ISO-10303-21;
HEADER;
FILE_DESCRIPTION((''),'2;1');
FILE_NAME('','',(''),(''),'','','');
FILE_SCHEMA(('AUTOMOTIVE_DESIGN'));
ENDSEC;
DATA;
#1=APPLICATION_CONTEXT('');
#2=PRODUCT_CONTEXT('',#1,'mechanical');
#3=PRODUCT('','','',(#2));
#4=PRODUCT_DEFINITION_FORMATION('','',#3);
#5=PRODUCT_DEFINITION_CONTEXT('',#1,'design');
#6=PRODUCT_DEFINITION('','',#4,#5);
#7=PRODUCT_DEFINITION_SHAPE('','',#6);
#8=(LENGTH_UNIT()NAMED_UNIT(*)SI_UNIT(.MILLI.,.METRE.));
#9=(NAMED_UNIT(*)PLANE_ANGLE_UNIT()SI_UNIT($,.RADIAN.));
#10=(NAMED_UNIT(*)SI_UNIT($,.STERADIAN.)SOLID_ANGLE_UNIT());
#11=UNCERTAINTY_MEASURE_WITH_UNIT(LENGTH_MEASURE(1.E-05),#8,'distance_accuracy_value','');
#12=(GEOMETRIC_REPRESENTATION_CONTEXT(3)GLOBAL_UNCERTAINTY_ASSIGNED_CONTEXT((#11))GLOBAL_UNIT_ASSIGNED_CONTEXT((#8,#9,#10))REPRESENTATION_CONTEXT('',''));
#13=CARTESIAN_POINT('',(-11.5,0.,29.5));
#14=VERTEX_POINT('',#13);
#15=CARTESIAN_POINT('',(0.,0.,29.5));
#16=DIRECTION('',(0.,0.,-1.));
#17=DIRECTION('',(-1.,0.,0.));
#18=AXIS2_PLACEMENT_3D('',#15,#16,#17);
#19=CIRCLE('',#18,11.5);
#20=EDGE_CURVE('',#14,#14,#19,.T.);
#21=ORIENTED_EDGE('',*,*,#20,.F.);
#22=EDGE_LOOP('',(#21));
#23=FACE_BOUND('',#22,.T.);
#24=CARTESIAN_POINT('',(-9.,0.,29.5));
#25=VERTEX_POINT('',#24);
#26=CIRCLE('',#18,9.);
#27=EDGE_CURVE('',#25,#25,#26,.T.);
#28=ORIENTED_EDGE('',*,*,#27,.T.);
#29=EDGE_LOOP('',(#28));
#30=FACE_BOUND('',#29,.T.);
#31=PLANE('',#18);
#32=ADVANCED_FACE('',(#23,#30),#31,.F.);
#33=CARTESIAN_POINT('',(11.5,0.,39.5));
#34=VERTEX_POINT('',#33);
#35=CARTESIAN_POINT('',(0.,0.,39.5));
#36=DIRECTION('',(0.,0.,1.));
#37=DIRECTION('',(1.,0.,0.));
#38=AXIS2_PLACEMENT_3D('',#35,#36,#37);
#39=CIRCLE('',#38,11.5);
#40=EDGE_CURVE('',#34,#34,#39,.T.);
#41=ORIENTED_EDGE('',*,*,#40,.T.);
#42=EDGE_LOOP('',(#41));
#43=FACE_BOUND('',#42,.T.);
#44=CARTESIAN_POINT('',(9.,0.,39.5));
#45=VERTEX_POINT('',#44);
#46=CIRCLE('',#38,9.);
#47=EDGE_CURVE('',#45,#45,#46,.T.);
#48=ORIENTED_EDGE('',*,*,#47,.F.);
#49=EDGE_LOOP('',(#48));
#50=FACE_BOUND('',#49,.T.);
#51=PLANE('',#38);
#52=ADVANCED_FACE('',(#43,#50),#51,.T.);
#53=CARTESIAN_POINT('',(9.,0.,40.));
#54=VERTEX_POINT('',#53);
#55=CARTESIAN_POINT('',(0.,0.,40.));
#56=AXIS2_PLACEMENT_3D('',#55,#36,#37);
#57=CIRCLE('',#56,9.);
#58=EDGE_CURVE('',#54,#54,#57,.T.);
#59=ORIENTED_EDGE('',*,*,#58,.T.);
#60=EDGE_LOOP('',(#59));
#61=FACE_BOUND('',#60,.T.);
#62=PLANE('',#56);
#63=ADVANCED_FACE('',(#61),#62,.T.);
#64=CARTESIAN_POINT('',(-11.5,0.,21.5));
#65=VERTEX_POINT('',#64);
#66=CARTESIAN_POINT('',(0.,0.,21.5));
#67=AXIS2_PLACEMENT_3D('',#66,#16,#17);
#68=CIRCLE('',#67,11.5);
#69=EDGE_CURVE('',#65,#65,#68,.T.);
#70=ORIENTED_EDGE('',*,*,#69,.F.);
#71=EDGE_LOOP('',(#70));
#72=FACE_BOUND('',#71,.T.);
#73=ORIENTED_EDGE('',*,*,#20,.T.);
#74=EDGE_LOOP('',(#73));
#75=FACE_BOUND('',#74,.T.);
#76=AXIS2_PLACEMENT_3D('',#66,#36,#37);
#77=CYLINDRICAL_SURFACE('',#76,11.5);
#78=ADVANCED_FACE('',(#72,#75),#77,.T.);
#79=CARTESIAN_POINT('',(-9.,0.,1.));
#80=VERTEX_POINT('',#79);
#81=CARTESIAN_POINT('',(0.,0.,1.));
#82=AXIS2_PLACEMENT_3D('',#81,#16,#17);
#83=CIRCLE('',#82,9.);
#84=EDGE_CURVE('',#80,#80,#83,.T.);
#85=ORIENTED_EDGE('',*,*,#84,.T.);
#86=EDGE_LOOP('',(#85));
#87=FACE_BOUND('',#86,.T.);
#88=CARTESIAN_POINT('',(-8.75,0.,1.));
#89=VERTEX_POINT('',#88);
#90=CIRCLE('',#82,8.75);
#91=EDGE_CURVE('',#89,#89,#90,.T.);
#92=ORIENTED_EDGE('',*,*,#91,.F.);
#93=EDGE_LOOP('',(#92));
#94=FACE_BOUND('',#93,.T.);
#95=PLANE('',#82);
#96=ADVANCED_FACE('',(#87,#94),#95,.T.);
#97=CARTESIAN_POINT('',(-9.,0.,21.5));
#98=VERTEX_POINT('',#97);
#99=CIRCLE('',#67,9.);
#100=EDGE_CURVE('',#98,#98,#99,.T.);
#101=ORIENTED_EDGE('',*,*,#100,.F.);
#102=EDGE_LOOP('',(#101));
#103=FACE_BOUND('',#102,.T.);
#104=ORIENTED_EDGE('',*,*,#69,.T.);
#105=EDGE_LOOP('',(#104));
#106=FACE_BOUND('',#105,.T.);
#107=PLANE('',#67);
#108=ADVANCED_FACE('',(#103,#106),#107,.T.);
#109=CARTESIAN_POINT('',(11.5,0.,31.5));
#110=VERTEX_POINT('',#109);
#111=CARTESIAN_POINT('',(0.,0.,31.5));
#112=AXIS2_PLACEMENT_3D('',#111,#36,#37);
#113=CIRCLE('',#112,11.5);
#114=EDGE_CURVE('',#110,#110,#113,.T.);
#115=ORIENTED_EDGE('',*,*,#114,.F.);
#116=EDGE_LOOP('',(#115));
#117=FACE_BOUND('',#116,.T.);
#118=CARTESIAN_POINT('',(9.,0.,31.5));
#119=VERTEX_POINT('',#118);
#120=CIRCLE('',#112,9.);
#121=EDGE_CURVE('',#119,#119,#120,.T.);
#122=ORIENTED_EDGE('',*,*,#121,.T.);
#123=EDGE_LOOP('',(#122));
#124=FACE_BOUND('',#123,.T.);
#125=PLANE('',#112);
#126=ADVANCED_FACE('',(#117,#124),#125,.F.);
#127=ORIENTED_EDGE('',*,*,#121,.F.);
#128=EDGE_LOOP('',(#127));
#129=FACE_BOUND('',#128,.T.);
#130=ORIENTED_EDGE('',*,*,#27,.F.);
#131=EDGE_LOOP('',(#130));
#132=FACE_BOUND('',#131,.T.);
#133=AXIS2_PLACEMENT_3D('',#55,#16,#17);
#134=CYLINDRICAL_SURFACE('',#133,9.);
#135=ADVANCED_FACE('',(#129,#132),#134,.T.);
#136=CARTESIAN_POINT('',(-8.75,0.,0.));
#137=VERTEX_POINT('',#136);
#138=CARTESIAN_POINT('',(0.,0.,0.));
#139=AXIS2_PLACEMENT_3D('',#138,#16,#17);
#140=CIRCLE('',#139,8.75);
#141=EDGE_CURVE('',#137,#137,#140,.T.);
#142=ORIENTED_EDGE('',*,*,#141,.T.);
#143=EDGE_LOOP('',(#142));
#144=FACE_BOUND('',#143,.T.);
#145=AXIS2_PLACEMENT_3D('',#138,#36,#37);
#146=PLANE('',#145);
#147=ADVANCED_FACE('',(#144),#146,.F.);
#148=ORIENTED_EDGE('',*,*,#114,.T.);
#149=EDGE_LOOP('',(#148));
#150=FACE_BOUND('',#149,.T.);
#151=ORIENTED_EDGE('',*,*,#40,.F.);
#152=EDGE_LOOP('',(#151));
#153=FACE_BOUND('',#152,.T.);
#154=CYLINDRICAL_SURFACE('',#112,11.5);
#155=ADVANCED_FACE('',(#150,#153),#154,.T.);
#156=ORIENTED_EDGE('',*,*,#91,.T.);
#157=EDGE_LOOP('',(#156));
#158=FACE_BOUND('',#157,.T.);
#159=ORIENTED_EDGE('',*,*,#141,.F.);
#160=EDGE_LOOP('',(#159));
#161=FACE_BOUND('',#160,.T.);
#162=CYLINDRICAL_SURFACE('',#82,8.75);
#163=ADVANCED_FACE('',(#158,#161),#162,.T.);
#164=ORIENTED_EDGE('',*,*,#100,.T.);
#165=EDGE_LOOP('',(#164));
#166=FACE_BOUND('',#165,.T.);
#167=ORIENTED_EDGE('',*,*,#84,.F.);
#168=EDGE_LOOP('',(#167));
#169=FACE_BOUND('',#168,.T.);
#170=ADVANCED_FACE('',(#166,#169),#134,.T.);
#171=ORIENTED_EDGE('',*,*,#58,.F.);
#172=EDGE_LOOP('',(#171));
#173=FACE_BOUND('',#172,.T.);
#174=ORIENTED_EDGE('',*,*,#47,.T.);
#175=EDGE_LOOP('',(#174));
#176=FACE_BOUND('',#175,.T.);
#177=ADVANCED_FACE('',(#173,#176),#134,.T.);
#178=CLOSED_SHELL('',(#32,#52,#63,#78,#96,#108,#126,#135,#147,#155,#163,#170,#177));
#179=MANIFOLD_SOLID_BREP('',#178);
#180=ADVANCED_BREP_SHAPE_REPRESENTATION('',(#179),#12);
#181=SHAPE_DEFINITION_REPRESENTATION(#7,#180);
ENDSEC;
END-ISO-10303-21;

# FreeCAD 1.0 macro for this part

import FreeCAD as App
import Part
import Sketcher
from FreeCAD import Vector

doc = App.newDocument("Part")
body = doc.addObject("PartDesign::Body", "Body")

sketch1 = body.newObject("Sketcher::SketchObject", "Sketch")
sketch1.AttachmentSupport = (doc.getObject("XY_Plane"), [""])
sketch1.MapMode = "FlatFace"
sketch1.addGeometry(Part.Circle(Vector(0, 0, 0), Vector(0, 0, 1), 9), False)
sketch1.addConstraint([
    Sketcher.Constraint("Coincident", 0, 3, -1, 1),
    Sketcher.Constraint("Diameter", 0, 18.0),
])
pad1 = body.newObject("PartDesign::Pad", "Pad")
pad1.Profile = sketch1
pad1.Length = 40

sketch2 = body.newObject("Sketcher::SketchObject", "Sketch001")
sketch2.AttachmentSupport = (doc.getObject("XY_Plane"), [""])
sketch2.MapMode = "FlatFace"
sketch2.AttachmentOffset = App.Placement(Vector(0, 0, 39.5), App.Rotation())
sketch2.addGeometry(Part.Circle(Vector(0, 0, 0), Vector(0, 0, 1), 12), False)
sketch2.addConstraint([
    Sketcher.Constraint("Coincident", 0, 3, -1, 1),
    Sketcher.Constraint("Diameter", 0, 23.0),
])
pad2 = body.newObject("PartDesign::Pad", "Pad001")
pad2.Profile = sketch2
pad2.Length = 8
pad2.Reversed = True

sketch3 = body.newObject("Sketcher::SketchObject", "Sketch002")
sketch3.AttachmentSupport = (doc.getObject("XY_Plane"), [""])
sketch3.MapMode = "FlatFace"
sketch3.AttachmentOffset = App.Placement(Vector(0, 0, 29.5), App.Rotation())
sketch3.addGeometry(Part.Circle(Vector(0, 0, 0), Vector(0, 0, 1), 12), False)
sketch3.addConstraint([
    Sketcher.Constraint("Coincident", 0, 3, -1, 1),
    Sketcher.Constraint("Diameter", 0, 23.0),
])
pad3 = body.newObject("PartDesign::Pad", "Pad002")
pad3.Profile = sketch3
pad3.Length = 8
pad3.Reversed = True

sketch4 = body.newObject("Sketcher::SketchObject", "Sketch003")
sketch4.AttachmentSupport = (doc.getObject("XY_Plane"), [""])
sketch4.MapMode = "FlatFace"
sketch4.addGeometry([
    Part.Circle(Vector(0, 0, 0), Vector(0, 0, 1), 9),
    Part.Circle(Vector(0, 0, 0), Vector(0, 0, 1), 9),
], False)
sketch4.addConstraint([
    Sketcher.Constraint("Coincident", 0, 3, -1, 1),
    Sketcher.Constraint("Coincident", 1, 3, -1, 1),
    Sketcher.Constraint("Diameter", 0, 18.0),
    Sketcher.Constraint("Diameter", 1, 17.5),
])
pocket1 = body.newObject("PartDesign::Pocket", "Pocket")
pocket1.Profile = sketch4
pocket1.Length = 1
pocket1.Reversed = True

doc.recompute()
